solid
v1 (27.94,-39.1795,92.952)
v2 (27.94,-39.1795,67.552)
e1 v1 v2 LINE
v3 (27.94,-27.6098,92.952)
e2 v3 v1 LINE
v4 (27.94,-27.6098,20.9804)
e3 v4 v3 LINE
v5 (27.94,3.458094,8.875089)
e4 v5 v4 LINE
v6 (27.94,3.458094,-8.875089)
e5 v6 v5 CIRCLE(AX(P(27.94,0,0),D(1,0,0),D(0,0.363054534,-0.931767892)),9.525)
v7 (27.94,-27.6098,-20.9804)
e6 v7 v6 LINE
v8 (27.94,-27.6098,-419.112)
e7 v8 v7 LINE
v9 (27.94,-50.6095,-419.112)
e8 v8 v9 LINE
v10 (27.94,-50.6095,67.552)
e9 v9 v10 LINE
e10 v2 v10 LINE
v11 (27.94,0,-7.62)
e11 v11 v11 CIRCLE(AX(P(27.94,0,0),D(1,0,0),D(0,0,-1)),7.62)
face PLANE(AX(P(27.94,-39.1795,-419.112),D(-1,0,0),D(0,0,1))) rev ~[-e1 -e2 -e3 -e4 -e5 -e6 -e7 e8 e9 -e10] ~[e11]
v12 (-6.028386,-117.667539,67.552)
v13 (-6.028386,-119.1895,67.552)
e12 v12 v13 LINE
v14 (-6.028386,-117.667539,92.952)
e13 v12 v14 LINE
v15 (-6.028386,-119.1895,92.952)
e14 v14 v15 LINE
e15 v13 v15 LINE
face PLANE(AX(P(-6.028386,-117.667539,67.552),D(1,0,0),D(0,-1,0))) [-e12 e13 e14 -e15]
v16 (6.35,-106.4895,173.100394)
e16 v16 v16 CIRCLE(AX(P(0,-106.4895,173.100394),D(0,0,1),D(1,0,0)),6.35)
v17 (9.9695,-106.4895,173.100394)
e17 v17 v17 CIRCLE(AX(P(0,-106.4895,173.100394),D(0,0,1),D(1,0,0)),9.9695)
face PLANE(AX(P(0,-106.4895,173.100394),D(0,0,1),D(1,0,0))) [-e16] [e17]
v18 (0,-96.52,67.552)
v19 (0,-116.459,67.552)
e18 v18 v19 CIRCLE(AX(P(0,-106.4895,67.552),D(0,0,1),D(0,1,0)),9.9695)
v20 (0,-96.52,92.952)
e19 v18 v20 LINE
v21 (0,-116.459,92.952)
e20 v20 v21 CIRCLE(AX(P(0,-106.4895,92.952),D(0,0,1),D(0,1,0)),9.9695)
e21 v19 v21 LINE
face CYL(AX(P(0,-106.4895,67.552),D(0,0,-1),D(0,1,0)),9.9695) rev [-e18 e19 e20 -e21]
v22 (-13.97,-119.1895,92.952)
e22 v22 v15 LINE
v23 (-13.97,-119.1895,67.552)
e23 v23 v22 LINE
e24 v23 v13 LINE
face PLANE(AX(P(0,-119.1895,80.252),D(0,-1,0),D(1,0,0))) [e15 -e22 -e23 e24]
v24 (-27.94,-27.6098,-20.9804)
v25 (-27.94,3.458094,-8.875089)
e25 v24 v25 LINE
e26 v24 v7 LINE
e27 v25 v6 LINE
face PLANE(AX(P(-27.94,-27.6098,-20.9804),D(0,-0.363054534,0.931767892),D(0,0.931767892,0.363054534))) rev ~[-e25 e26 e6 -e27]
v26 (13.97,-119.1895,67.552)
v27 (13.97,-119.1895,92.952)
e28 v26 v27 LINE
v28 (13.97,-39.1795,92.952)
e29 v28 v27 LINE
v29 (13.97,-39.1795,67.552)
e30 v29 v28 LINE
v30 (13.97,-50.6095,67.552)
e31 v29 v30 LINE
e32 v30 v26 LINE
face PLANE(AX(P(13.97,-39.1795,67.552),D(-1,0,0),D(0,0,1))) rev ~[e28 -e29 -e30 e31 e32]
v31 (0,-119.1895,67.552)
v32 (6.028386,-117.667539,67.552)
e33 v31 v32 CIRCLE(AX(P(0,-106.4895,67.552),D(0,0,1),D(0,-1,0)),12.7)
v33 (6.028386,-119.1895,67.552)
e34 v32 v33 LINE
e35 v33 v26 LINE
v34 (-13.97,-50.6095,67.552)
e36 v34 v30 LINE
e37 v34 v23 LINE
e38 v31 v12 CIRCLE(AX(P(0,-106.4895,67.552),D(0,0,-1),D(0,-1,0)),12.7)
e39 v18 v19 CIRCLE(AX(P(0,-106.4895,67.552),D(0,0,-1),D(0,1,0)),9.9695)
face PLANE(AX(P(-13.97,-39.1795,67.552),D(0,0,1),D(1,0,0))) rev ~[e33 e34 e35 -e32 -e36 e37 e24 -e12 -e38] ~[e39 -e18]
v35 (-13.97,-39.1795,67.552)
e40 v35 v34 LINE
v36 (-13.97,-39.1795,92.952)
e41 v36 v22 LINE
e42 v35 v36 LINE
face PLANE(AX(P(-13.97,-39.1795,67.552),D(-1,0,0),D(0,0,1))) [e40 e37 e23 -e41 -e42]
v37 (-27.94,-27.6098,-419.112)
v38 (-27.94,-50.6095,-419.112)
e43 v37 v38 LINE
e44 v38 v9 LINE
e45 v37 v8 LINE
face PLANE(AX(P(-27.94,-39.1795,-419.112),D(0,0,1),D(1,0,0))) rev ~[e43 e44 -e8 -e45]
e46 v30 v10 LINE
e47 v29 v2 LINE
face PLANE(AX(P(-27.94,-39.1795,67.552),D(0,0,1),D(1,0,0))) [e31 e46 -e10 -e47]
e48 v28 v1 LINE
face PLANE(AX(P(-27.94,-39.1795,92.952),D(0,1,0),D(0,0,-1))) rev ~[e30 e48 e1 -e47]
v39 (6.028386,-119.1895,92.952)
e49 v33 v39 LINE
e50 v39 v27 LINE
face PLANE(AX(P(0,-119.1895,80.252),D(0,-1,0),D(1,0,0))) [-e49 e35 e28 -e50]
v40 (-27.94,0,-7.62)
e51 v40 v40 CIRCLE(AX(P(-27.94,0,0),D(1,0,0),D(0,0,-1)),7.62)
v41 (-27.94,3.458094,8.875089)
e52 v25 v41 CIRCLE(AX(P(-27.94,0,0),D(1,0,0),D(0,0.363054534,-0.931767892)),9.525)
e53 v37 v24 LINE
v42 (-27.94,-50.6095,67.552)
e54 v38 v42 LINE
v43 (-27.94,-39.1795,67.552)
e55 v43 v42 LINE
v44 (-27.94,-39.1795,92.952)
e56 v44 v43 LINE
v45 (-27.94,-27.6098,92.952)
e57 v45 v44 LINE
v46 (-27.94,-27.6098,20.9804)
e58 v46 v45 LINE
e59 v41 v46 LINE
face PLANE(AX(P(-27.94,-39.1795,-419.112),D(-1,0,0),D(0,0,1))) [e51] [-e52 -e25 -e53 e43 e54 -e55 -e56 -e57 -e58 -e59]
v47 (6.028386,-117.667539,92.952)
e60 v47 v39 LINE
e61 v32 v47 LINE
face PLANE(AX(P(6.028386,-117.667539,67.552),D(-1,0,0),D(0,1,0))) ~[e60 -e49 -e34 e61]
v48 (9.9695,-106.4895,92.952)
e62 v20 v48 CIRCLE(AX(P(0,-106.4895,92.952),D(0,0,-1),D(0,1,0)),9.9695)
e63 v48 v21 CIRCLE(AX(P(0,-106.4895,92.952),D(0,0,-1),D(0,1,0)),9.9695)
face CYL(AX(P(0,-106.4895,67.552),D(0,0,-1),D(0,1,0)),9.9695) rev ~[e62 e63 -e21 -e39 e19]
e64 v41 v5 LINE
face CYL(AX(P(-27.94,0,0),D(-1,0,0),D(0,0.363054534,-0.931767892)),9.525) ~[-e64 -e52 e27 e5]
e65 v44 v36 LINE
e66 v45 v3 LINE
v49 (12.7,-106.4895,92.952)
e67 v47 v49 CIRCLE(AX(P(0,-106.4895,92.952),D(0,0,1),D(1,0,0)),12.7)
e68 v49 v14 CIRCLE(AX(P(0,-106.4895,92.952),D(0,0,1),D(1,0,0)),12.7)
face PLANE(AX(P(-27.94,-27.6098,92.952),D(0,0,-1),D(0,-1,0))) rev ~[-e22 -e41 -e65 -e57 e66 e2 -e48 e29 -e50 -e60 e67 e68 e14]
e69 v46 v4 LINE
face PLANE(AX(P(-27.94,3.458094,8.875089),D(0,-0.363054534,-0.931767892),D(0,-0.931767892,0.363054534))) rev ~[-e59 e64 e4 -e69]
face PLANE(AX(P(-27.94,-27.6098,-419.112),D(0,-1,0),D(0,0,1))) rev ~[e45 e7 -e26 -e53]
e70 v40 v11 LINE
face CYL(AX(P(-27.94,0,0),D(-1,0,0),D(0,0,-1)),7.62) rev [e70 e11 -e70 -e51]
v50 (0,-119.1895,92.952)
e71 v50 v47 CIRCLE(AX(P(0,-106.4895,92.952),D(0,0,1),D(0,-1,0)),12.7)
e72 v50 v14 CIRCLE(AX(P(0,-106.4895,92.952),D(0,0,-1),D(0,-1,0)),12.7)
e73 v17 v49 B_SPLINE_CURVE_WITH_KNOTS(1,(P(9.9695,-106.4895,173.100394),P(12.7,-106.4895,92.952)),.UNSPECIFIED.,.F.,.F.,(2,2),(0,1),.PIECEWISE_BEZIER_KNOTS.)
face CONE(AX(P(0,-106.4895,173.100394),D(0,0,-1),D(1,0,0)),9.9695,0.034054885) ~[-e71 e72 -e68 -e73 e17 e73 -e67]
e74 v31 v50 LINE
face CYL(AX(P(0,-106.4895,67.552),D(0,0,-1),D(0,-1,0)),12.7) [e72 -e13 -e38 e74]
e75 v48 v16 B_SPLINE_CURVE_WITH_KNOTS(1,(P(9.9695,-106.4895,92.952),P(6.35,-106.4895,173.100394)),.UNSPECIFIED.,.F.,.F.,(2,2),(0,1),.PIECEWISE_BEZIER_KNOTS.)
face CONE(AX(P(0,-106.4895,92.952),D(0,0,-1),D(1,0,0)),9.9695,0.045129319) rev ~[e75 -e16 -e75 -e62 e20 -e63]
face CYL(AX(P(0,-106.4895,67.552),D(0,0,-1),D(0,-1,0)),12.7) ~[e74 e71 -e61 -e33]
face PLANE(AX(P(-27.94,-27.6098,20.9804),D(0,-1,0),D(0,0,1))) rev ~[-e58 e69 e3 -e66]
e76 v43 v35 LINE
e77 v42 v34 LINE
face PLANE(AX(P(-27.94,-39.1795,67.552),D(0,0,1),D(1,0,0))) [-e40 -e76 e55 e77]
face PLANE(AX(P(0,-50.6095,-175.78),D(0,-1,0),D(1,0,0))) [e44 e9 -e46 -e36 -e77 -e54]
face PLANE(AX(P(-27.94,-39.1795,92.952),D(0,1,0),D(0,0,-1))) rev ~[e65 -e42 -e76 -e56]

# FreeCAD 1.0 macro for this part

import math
import FreeCAD as App
import Part
import Sketcher
from FreeCAD import Vector
Q = App.Units.Quantity

doc = App.newDocument("Part")
params = doc.addObject("Spreadsheet::Sheet", "Params")
for row, (alias, value) in enumerate([
    ("sketch1_diameter", "0.6 in"),
    ("sketch1_radius", "0.375 in"),
    ("sketch1_height", "20.16 in"),
    ("pad1_length", "1.1 in"),
    ("pad1_length2", "1.1 in"),
    ("sketch2_height", "1 in"),
    ("sketch2_width", "1.1 in"),
    ("pad2_length", "3.15 in"),
    ("sketch3_radius", "0.5 in"),
    ("pocket1_length", "1 in"),
    ("sketch4_diameter", "0.785 in"),
    ("sketch5_diameter", "1 in"),
    ("sketch6_diameter", "0.785 in"),
    ("sketch7_diameter", "0.5 in"),
    ("sketch8_width", "2.2 in"),
    ("sketch8_height", "19.16 in"),
    ("pad3_length", "0.45 in"),
], start=1):
    params.set(f"A{row}", alias)
    params.set(f"B{row}", "=" + value)
    params.setAlias(f"B{row}", alias)

body = doc.addObject("PartDesign::Body", "Body")

# Sketch on YZ plane
sketch1 = body.newObject("Sketcher::SketchObject", "Sketch")
sketch1.AttachmentSupport = (doc.getObject("YZ_Plane"), [""])
sketch1.MapMode = "FlatFace"
sketch1.addGeometry([
    Part.LineSegment(Vector(-27.6098, -419.112, 0), Vector(-27.6098, -20.9804, 0)),  # 0
    Part.LineSegment(Vector(-27.6098, -20.9804, 0), Vector(3.458094, -8.875089, 0)),  # 1
    Part.ArcOfCircle(Part.Circle(Vector(0, 0, 0), Vector(0, 0, 1), 9.525), math.radians(-68.712096), math.radians(68.712096)),  # 2
    Part.LineSegment(Vector(3.458094, 8.875089, 0), Vector(-27.6098, 20.9804, 0)),  # 3
    Part.LineSegment(Vector(-27.6098, 20.9804, 0), Vector(-27.6098, 92.952, 0)),  # 4
    Part.LineSegment(Vector(-27.6098, 92.952, 0), Vector(-39.1795, 92.952, 0)),  # 5
    Part.LineSegment(Vector(-39.1795, 92.952, 0), Vector(-39.1795, -419.112, 0)),  # 6
    Part.LineSegment(Vector(-39.1795, -419.112, 0), Vector(-27.6098, -419.112, 0)),  # 7
    Part.Circle(Vector(0, 0, 0), Vector(0, 0, 1), 7.62),  # 8
], False)
sketch1.addConstraint([
    Sketcher.Constraint("Coincident", 0, 2, 1, 1),
    Sketcher.Constraint("Tangent", 1, 2, 2, 1),
    Sketcher.Constraint("Tangent", 2, 2, 3, 1),
    Sketcher.Constraint("Coincident", 3, 2, 4, 1),
    Sketcher.Constraint("Coincident", 4, 2, 5, 1),
    Sketcher.Constraint("Coincident", 5, 2, 6, 1),
    Sketcher.Constraint("Coincident", 6, 2, 7, 1),
    Sketcher.Constraint("Coincident", 7, 2, 0, 1),
    Sketcher.Constraint("Vertical", 0),
    Sketcher.Constraint("Vertical", 4),
    Sketcher.Constraint("Horizontal", 5),
    Sketcher.Constraint("Vertical", 6),
    Sketcher.Constraint("Horizontal", 7),
    Sketcher.Constraint("Coincident", 2, 3, -1, 1),
    Sketcher.Constraint("Coincident", 8, 3, -1, 1),
    Sketcher.Constraint("Symmetric", 0, 2, 3, 2, -1),
    Sketcher.Constraint("Diameter", 8, Q("0.6 in")),
    Sketcher.Constraint("Radius", 2, Q("0.375 in")),
    Sketcher.Constraint("DistanceY", 6, 2, 6, 1, Q("20.16 in")),
    Sketcher.Constraint("DistanceX", 5, 2, 5, 1, Q("0.4555 in")),
    Sketcher.Constraint("DistanceX", 0, 2, -1, 1, Q("1.087 in")),
    Sketcher.Constraint("DistanceY", 0, 2, -1, 1, Q("0.826 in")),
    Sketcher.Constraint("DistanceY", 0, 1, 0, 2, Q("398.1316 mm")),
])
sketch1.setExpression("Constraints[16]", "Params.sketch1_diameter")
sketch1.setExpression("Constraints[17]", "Params.sketch1_radius")
sketch1.setExpression("Constraints[18]", "Params.sketch1_height")
pad1 = body.newObject("PartDesign::Pad", "Pad")
pad1.Profile = sketch1
pad1.Type = "TwoLengths"
pad1.setExpression("Length", "Params.pad1_length")
pad1.setExpression("Length2", "Params.pad1_length2")

# Sketch on XZ plane
sketch2 = body.newObject("Sketcher::SketchObject", "Sketch001")
sketch2.AttachmentSupport = (doc.getObject("XZ_Plane"), [""])
sketch2.MapMode = "FlatFace"
sketch2.AttachmentOffset = App.Placement(Vector(0, 0, 1.5425 * 25.4), App.Rotation())
sketch2.addGeometry([
    Part.LineSegment(Vector(-13.97, 92.952, 0), Vector(-13.97, 67.552, 0)),
    Part.LineSegment(Vector(-13.97, 67.552, 0), Vector(13.97, 67.552, 0)),
    Part.LineSegment(Vector(13.97, 67.552, 0), Vector(13.97, 92.952, 0)),
    Part.LineSegment(Vector(13.97, 92.952, 0), Vector(-13.97, 92.952, 0)),
], False)
sketch2.addConstraint([
    Sketcher.Constraint("Coincident", 0, 2, 1, 1),
    Sketcher.Constraint("Coincident", 1, 2, 2, 1),
    Sketcher.Constraint("Coincident", 2, 2, 3, 1),
    Sketcher.Constraint("Coincident", 3, 2, 0, 1),
    Sketcher.Constraint("Vertical", 0),
    Sketcher.Constraint("Horizontal", 1),
    Sketcher.Constraint("Vertical", 2),
    Sketcher.Constraint("Horizontal", 3),
    Sketcher.Constraint("DistanceY", 0, 2, 0, 1, Q("1 in")),
    Sketcher.Constraint("DistanceX", 1, 1, 1, 2, Q("1.1 in")),
    Sketcher.Constraint("DistanceX", 0, 2, -1, 1, Q("0.55 in")),
    Sketcher.Constraint("DistanceY", -1, 1, 0, 2, Q("67.552 mm")),
])
sketch2.setExpression("Constraints[8]", "Params.sketch2_height")
sketch2.setExpression("Constraints[9]", "Params.sketch2_width")
pad2 = body.newObject("PartDesign::Pad", "Pad001")
pad2.Profile = sketch2
pad2.setExpression("Length", "Params.pad2_length")

# Sketch on XY plane
sketch3 = body.newObject("Sketcher::SketchObject", "Sketch002")
sketch3.AttachmentSupport = (doc.getObject("XY_Plane"), [""])
sketch3.MapMode = "FlatFace"
sketch3.AttachmentOffset = App.Placement(Vector(0, 0, 67.552), App.Rotation())
sketch3.addGeometry([
    Part.LineSegment(Vector(-6.028386, -119.1895, 0), Vector(-6.028386, -117.667539, 0)),  # 0
    Part.ArcOfCircle(Part.Circle(Vector(0, -106.4895, 0), Vector(0, 0, 1), 12.7), math.radians(-118.338262), math.radians(-90)),  # 1
    Part.LineSegment(Vector(0, -119.1895, 0), Vector(-6.028386, -119.1895, 0)),  # 2
    Part.LineSegment(Vector(0, -96.52, 0), Vector(0, -116.459, 0)),  # 3
    Part.ArcOfCircle(Part.Circle(Vector(0, -106.4895, 0), Vector(0, 0, 1), 9.9695), math.radians(90), math.radians(270)),  # 4
], False)
sketch3.addConstraint([
    Sketcher.Constraint("Coincident", 0, 2, 1, 1),
    Sketcher.Constraint("Tangent", 1, 2, 2, 1),
    Sketcher.Constraint("Coincident", 2, 2, 0, 1),
    Sketcher.Constraint("Coincident", 3, 1, 4, 1),
    Sketcher.Constraint("Coincident", 4, 2, 3, 2),
    Sketcher.Constraint("Vertical", 0),
    Sketcher.Constraint("Horizontal", 2),
    Sketcher.Constraint("Vertical", 3),
    Sketcher.Constraint("Coincident", 4, 3, 1, 3),
    Sketcher.Constraint("PointOnObject", 1, 3, -2),
    Sketcher.Constraint("PointOnObject", 3, 1, -2),
    Sketcher.Constraint("Radius", 1, Q("0.5 in")),
    Sketcher.Constraint("DistanceY", 3, 1, -1, 1, Q("3.8 in")),
    Sketcher.Constraint("Radius", 4, Q("0.3925 in")),
    Sketcher.Constraint("DistanceY", 0, 1, 0, 2, Q("1.521961 mm")),
])
sketch3.setExpression("Constraints[11]", "Params.sketch3_radius")
pocket1 = body.newObject("PartDesign::Pocket", "Pocket")
pocket1.Profile = sketch3
pocket1.setExpression("Length", "Params.pocket1_length")
pocket1.Reversed = True
doc.recompute()

mirrored = body.newObject("PartDesign::Mirrored", "Mirrored")
mirrored.Originals = [pocket1]
mirrored.MirrorPlane = (doc.getObject("YZ_Plane"), [""])
body.Tip = mirrored

# Sketch on XY plane
sketch4 = body.newObject("Sketcher::SketchObject", "Sketch003")
sketch4.AttachmentSupport = (doc.getObject("XY_Plane"), [""])
sketch4.MapMode = "FlatFace"
sketch4.AttachmentOffset = App.Placement(Vector(0, 0, 173.100394), App.Rotation())
sketch4.addGeometry(Part.Circle(Vector(0, -106.4895, 0), Vector(0, 0, 1), 9.9695), False)
sketch4.addConstraint([
    Sketcher.Constraint("PointOnObject", 0, 3, -2),
    Sketcher.Constraint("Diameter", 0, Q("0.785 in")),
    Sketcher.Constraint("DistanceY", 0, 3, -1, 1, Q("4.1925 in")),
])
sketch4.setExpression("Constraints[1]", "Params.sketch4_diameter")

# Sketch on XY plane
sketch5 = body.newObject("Sketcher::SketchObject", "Sketch004")
sketch5.AttachmentSupport = (doc.getObject("XY_Plane"), [""])
sketch5.MapMode = "FlatFace"
sketch5.AttachmentOffset = App.Placement(Vector(0, 0, 92.952), App.Rotation())
sketch5.addGeometry(Part.Circle(Vector(0, -106.4895, 0), Vector(0, 0, 1), 12.7), False)
sketch5.addConstraint([
    Sketcher.Constraint("PointOnObject", 0, 3, -2),
    Sketcher.Constraint("Diameter", 0, Q("1 in")),
    Sketcher.Constraint("DistanceY", 0, 3, -1, 1, Q("4.1925 in")),
])
sketch5.setExpression("Constraints[1]", "Params.sketch5_diameter")

additiveloft = body.newObject("PartDesign::AdditiveLoft", "AdditiveLoft")
additiveloft.Profile = sketch4
additiveloft.Sections = [sketch5]

# Sketch on XY plane
sketch6 = body.newObject("Sketcher::SketchObject", "Sketch005")
sketch6.AttachmentSupport = (doc.getObject("XY_Plane"), [""])
sketch6.MapMode = "FlatFace"
sketch6.AttachmentOffset = App.Placement(Vector(0, 0, 92.952), App.Rotation())
sketch6.addGeometry(Part.Circle(Vector(0, -106.4895, 0), Vector(0, 0, 1), 9.9695), False)
sketch6.addConstraint([
    Sketcher.Constraint("PointOnObject", 0, 3, -2),
    Sketcher.Constraint("Diameter", 0, Q("0.785 in")),
    Sketcher.Constraint("DistanceY", 0, 3, -1, 1, Q("4.1925 in")),
])
sketch6.setExpression("Constraints[1]", "Params.sketch6_diameter")

# Sketch on XY plane
sketch7 = body.newObject("Sketcher::SketchObject", "Sketch006")
sketch7.AttachmentSupport = (doc.getObject("XY_Plane"), [""])
sketch7.MapMode = "FlatFace"
sketch7.AttachmentOffset = App.Placement(Vector(0, 0, 173.100394), App.Rotation())
sketch7.addGeometry(Part.Circle(Vector(0, -106.4895, 0), Vector(0, 0, 1), 6.35), False)
sketch7.addConstraint([
    Sketcher.Constraint("PointOnObject", 0, 3, -2),
    Sketcher.Constraint("Diameter", 0, Q("0.5 in")),
    Sketcher.Constraint("DistanceY", 0, 3, -1, 1, Q("4.1925 in")),
])
sketch7.setExpression("Constraints[1]", "Params.sketch7_diameter")

subtractiveloft = body.newObject("PartDesign::SubtractiveLoft", "SubtractiveLoft")
subtractiveloft.Profile = sketch6
subtractiveloft.Sections = [sketch7]

# Sketch on XZ plane
sketch8 = body.newObject("Sketcher::SketchObject", "Sketch007")
sketch8.AttachmentSupport = (doc.getObject("XZ_Plane"), [""])
sketch8.MapMode = "FlatFace"
sketch8.AttachmentOffset = App.Placement(Vector(0, 0, 1.5425 * 25.4), App.Rotation())
sketch8.addGeometry([
    Part.LineSegment(Vector(-27.94, 67.552, 0), Vector(-27.94, -419.112, 0)),
    Part.LineSegment(Vector(-27.94, -419.112, 0), Vector(27.94, -419.112, 0)),
    Part.LineSegment(Vector(27.94, -419.112, 0), Vector(27.94, 67.552, 0)),
    Part.LineSegment(Vector(27.94, 67.552, 0), Vector(-27.94, 67.552, 0)),
], False)
sketch8.addConstraint([
    Sketcher.Constraint("Coincident", 0, 2, 1, 1),
    Sketcher.Constraint("Coincident", 1, 2, 2, 1),
    Sketcher.Constraint("Coincident", 2, 2, 3, 1),
    Sketcher.Constraint("Coincident", 3, 2, 0, 1),
    Sketcher.Constraint("Vertical", 0),
    Sketcher.Constraint("Horizontal", 1),
    Sketcher.Constraint("Vertical", 2),
    Sketcher.Constraint("Horizontal", 3),
    Sketcher.Constraint("DistanceX", 1, 1, 1, 2, Q("2.2 in")),
    Sketcher.Constraint("DistanceY", 0, 2, 0, 1, Q("19.16 in")),
    Sketcher.Constraint("DistanceX", 0, 2, -1, 1, Q("1.1 in")),
    Sketcher.Constraint("DistanceY", 0, 2, -1, 1, Q("419.112 mm")),
])
sketch8.setExpression("Constraints[8]", "Params.sketch8_width")
sketch8.setExpression("Constraints[9]", "Params.sketch8_height")
pad3 = body.newObject("PartDesign::Pad", "Pad002")
pad3.Profile = sketch8
pad3.setExpression("Length", "Params.pad3_length")

doc.recompute()
